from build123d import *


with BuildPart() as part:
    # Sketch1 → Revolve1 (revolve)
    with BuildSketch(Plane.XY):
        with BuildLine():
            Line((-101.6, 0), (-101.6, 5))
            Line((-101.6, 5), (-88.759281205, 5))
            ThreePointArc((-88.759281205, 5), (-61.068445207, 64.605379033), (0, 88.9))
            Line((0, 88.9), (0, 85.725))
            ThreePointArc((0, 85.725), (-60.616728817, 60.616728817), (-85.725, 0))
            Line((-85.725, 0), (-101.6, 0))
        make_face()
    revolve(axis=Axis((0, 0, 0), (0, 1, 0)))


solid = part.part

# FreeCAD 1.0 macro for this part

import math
import FreeCAD as App
import Part
import Sketcher
from FreeCAD import Vector
Q = App.Units.Quantity

doc = App.newDocument("Part")
params = doc.addObject("Spreadsheet::Sheet", "Params")
for row, (alias, value) in enumerate([
    ("sketch1_radius", "3.5 in"),
    ("sketch1_radius2", "3.375 in"),
    ("revolution_angle", "360 deg"),
], start=1):
    params.set(f"A{row}", alias)
    params.set(f"B{row}", "=" + value)
    params.setAlias(f"B{row}", alias)

body = doc.addObject("PartDesign::Body", "Body")

# Sketch on XY plane
sketch1 = body.newObject("Sketcher::SketchObject", "Sketch")
sketch1.AttachmentSupport = (doc.getObject("XY_Plane"), [""])
sketch1.MapMode = "FlatFace"
sketch1.addGeometry([
    Part.LineSegment(Vector(-101.6, 5, 0), Vector(-101.6, 0, 0)),  # 0
    Part.LineSegment(Vector(-101.6, 0, 0), Vector(-85.7, 0, 0)),  # 1
    Part.ArcOfCircle(Part.Circle(Vector(0, 0, 0), Vector(0, 0, 1), 85.7), math.radians(90), math.radians(180)),  # 2
    Part.LineSegment(Vector(0, 85.7, 0), Vector(0, 88.9, 0)),  # 3
    Part.ArcOfCircle(Part.Circle(Vector(0, 0, 0), Vector(0, 0, 1), 88.9), math.radians(90), math.radians(177)),  # 4
    Part.LineSegment(Vector(-88.8, 5, 0), Vector(-101.6, 5, 0)),  # 5
], False)
sketch1.addConstraint([
    Sketcher.Constraint("Coincident", 0, 2, 1, 1),
    Sketcher.Constraint("Coincident", 1, 2, 2, 2),
    Sketcher.Constraint("Coincident", 2, 1, 3, 1),
    Sketcher.Constraint("Coincident", 3, 2, 4, 1),
    Sketcher.Constraint("Coincident", 4, 2, 5, 1),
    Sketcher.Constraint("Coincident", 5, 2, 0, 1),
    Sketcher.Constraint("Vertical", 0),
    Sketcher.Constraint("Horizontal", 1),
    Sketcher.Constraint("Vertical", 3),
    Sketcher.Constraint("Horizontal", 5),
    Sketcher.Constraint("Coincident", 2, 3, -1, 1),
    Sketcher.Constraint("Coincident", 4, 3, -1, 1),
    Sketcher.Constraint("PointOnObject", 0, 2, -1),
    Sketcher.Constraint("PointOnObject", 2, 1, -2),
    Sketcher.Constraint("Radius", 4, Q("3.5 in")),
    Sketcher.Constraint("DistanceX", 0, 2, -1, 1, Q("4 in")),
    Sketcher.Constraint("Radius", 2, Q("3.375 in")),
    Sketcher.Constraint("DistanceY", 0, 2, 0, 1, Q("5 mm")),
])
sketch1.setExpression("Constraints[14]", "Params.sketch1_radius")
sketch1.setExpression("Constraints[16]", "Params.sketch1_radius2")
revolution = body.newObject("PartDesign::Revolution", "Revolution")
revolution.Profile = sketch1
revolution.ReferenceAxis = (sketch1, ["V_Axis"])
revolution.setExpression("Angle", "Params.revolution_angle")

doc.recompute()
